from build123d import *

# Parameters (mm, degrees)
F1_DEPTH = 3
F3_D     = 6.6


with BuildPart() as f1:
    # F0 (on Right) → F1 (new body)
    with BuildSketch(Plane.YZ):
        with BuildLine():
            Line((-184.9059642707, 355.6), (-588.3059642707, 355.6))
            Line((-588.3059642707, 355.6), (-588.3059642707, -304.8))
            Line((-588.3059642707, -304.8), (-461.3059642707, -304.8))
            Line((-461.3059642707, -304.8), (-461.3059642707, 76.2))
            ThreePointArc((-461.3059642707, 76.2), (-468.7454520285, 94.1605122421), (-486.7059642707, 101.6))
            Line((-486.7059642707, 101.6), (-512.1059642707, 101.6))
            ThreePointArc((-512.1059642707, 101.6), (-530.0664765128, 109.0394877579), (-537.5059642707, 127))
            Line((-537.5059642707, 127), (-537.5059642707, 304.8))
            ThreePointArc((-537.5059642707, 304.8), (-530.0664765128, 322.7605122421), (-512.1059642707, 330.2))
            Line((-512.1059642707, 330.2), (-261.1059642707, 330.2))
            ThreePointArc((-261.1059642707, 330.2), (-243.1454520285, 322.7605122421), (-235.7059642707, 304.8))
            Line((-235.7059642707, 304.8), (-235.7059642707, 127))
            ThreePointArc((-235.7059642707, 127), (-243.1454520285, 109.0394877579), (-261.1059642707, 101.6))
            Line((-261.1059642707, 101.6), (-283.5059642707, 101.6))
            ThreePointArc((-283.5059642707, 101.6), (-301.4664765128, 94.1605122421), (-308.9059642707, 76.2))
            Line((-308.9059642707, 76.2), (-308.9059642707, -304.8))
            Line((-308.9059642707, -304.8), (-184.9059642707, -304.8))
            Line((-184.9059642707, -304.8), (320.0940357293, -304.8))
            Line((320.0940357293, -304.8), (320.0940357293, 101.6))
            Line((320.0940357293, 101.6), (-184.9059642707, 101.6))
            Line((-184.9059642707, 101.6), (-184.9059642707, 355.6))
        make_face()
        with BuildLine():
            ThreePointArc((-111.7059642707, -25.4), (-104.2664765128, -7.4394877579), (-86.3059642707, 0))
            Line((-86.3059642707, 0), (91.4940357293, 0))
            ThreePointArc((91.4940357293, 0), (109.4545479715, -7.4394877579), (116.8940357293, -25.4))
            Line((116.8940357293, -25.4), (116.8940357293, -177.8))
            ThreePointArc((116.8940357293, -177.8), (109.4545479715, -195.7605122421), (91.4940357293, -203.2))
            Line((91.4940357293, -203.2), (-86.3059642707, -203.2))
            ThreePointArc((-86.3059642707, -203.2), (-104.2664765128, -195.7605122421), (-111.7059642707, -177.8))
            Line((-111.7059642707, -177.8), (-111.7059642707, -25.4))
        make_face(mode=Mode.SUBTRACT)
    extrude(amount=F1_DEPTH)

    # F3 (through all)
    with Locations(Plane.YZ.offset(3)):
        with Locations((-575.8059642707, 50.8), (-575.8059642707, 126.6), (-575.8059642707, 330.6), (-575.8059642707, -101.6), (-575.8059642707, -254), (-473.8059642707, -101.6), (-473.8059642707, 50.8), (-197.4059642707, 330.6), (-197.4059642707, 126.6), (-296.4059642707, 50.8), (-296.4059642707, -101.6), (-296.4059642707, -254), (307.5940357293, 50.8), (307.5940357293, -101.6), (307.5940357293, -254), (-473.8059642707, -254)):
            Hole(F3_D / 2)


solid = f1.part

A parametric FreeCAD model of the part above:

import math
import FreeCAD as App
import Part
import Sketcher

V = App.Vector
Q = App.Units.Quantity

doc = App.newDocument("Part")
params = doc.addObject("Spreadsheet::Sheet", "Params")
for row, (alias, value) in enumerate([
    ("sketch1_radius", "1 in"),
    ("sketch1_width", "5 in"),
    ("sketch1_width2", "1 in"),
    ("sketch1_width3", "7 in"),
    ("sketch1_height", "26 in"),
    ("pad1_length", "3 mm"),
    ("hole_diameter", "6.6 mm"),
], start=1):
    params.set(f"A{row}", alias)
    params.set(f"B{row}", "=" + value)
    params.setAlias(f"B{row}", alias)

body = doc.addObject("PartDesign::Body", "Body")

# Sketch on YZ plane
sketch1 = doc.addObject("Sketcher::SketchObject", "Sketch")
body.addObject(sketch1)
sketch1.AttachmentSupport = (doc.YZ_Plane, [""])
sketch1.MapMode = "FlatFace"
sketch1.addGeometry(Part.LineSegment(V(-184.905964, 355.6, 0), V(-588.305964, 355.6, 0)), False)
sketch1.addGeometry(Part.LineSegment(V(-588.305964, 355.6, 0), V(-588.305964, -304.8, 0)), False)
sketch1.addGeometry(Part.LineSegment(V(-588.305964, -304.8, 0), V(-461.305964, -304.8, 0)), False)
sketch1.addGeometry(Part.LineSegment(V(-461.305964, -304.8, 0), V(-461.305964, 76.2, 0)), False)
sketch1.addGeometry(Part.ArcOfCircle(Part.Circle(V(-486.705964, 76.2, 0), V(0, 0, 1), 25.4), math.radians(0), math.radians(90)), False)
sketch1.addGeometry(Part.LineSegment(V(-486.705964, 101.6, 0), V(-512.105964, 101.6, 0)), False)
sketch1.addGeometry(Part.ArcOfCircle(Part.Circle(V(-512.105964, 127, 0), V(0, 0, 1), 25.4), math.radians(180), math.radians(270)), False)
sketch1.addGeometry(Part.LineSegment(V(-537.505964, 127, 0), V(-537.505964, 304.8, 0)), False)
sketch1.addGeometry(Part.ArcOfCircle(Part.Circle(V(-512.105964, 304.8, 0), V(0, 0, 1), 25.4), math.radians(90), math.radians(180)), False)
sketch1.addGeometry(Part.LineSegment(V(-512.105964, 330.2, 0), V(-261.105964, 330.2, 0)), False)
sketch1.addGeometry(Part.ArcOfCircle(Part.Circle(V(-261.105964, 304.8, 0), V(0, 0, 1), 25.4), math.radians(0), math.radians(90)), False)
sketch1.addGeometry(Part.LineSegment(V(-235.705964, 304.8, 0), V(-235.705964, 127, 0)), False)
sketch1.addGeometry(Part.ArcOfCircle(Part.Circle(V(-261.105964, 127, 0), V(0, 0, 1), 25.4), math.radians(-90), math.radians(0)), False)
sketch1.addGeometry(Part.LineSegment(V(-261.105964, 101.6, 0), V(-283.505964, 101.6, 0)), False)
sketch1.addGeometry(Part.ArcOfCircle(Part.Circle(V(-283.505964, 76.2, 0), V(0, 0, 1), 25.4), math.radians(90), math.radians(180)), False)
sketch1.addGeometry(Part.LineSegment(V(-308.905964, 76.2, 0), V(-308.905964, -304.8, 0)), False)
sketch1.addGeometry(Part.LineSegment(V(-308.905964, -304.8, 0), V(320.094036, -304.8, 0)), False)
sketch1.addGeometry(Part.LineSegment(V(320.094036, -304.8, 0), V(320.094036, 101.6, 0)), False)
sketch1.addGeometry(Part.LineSegment(V(320.094036, 101.6, 0), V(-184.905964, 101.6, 0)), False)
sketch1.addGeometry(Part.LineSegment(V(-184.905964, 101.6, 0), V(-184.905964, 355.6, 0)), False)
sketch1.addGeometry(Part.LineSegment(V(-111.705964, -177.8, 0), V(-111.705964, -25.4, 0)), False)
sketch1.addGeometry(Part.ArcOfCircle(Part.Circle(V(-86.305964, -25.4, 0), V(0, 0, 1), 25.4), math.radians(90), math.radians(180)), False)
sketch1.addGeometry(Part.LineSegment(V(-86.305964, 0, 0), V(91.494036, 0, 0)), False)
sketch1.addGeometry(Part.ArcOfCircle(Part.Circle(V(91.494036, -25.4, 0), V(0, 0, 1), 25.4), math.radians(0), math.radians(90)), False)
sketch1.addGeometry(Part.LineSegment(V(116.894036, -25.4, 0), V(116.894036, -177.8, 0)), False)
sketch1.addGeometry(Part.ArcOfCircle(Part.Circle(V(91.494036, -177.8, 0), V(0, 0, 1), 25.4), math.radians(-90), math.radians(0)), False)
sketch1.addGeometry(Part.LineSegment(V(91.494036, -203.2, 0), V(-86.305964, -203.2, 0)), False)
sketch1.addGeometry(Part.ArcOfCircle(Part.Circle(V(-86.305964, -177.8, 0), V(0, 0, 1), 25.4), math.radians(180), math.radians(270)), False)
sketch1.addConstraint(Sketcher.Constraint("Coincident", 0, 2, 1, 1))
sketch1.addConstraint(Sketcher.Constraint("Coincident", 1, 2, 2, 1))
sketch1.addConstraint(Sketcher.Constraint("Coincident", 2, 2, 3, 1))
sketch1.addConstraint(Sketcher.Constraint("Tangent", 3, 2, 4, 1))
sketch1.addConstraint(Sketcher.Constraint("Tangent", 4, 2, 5, 1))
sketch1.addConstraint(Sketcher.Constraint("Tangent", 5, 2, 6, 2))
sketch1.addConstraint(Sketcher.Constraint("Tangent", 6, 1, 7, 1))
sketch1.addConstraint(Sketcher.Constraint("Tangent", 7, 2, 8, 2))
sketch1.addConstraint(Sketcher.Constraint("Tangent", 8, 1, 9, 1))
sketch1.addConstraint(Sketcher.Constraint("Tangent", 9, 2, 10, 2))
sketch1.addConstraint(Sketcher.Constraint("Tangent", 10, 1, 11, 1))
sketch1.addConstraint(Sketcher.Constraint("Tangent", 11, 2, 12, 2))
sketch1.addConstraint(Sketcher.Constraint("Tangent", 12, 1, 13, 1))
sketch1.addConstraint(Sketcher.Constraint("Tangent", 13, 2, 14, 1))
sketch1.addConstraint(Sketcher.Constraint("Tangent", 14, 2, 15, 1))
sketch1.addConstraint(Sketcher.Constraint("Coincident", 15, 2, 16, 1))
sketch1.addConstraint(Sketcher.Constraint("Coincident", 16, 2, 17, 1))
sketch1.addConstraint(Sketcher.Constraint("Coincident", 17, 2, 18, 1))
sketch1.addConstraint(Sketcher.Constraint("Coincident", 18, 2, 19, 1))
sketch1.addConstraint(Sketcher.Constraint("Coincident", 19, 2, 0, 1))
sketch1.addConstraint(Sketcher.Constraint("Tangent", 20, 2, 21, 2))
sketch1.addConstraint(Sketcher.Constraint("Tangent", 21, 1, 22, 1))
sketch1.addConstraint(Sketcher.Constraint("Tangent", 22, 2, 23, 2))
sketch1.addConstraint(Sketcher.Constraint("Tangent", 23, 1, 24, 1))
sketch1.addConstraint(Sketcher.Constraint("Tangent", 24, 2, 25, 2))
sketch1.addConstraint(Sketcher.Constraint("Tangent", 25, 1, 26, 1))
sketch1.addConstraint(Sketcher.Constraint("Tangent", 26, 2, 27, 2))
sketch1.addConstraint(Sketcher.Constraint("Tangent", 27, 1, 20, 1))
sketch1.addConstraint(Sketcher.Constraint("Horizontal", 0))
sketch1.addConstraint(Sketcher.Constraint("Vertical", 1))
sketch1.addConstraint(Sketcher.Constraint("Horizontal", 2))
sketch1.addConstraint(Sketcher.Constraint("Vertical", 3))
sketch1.addConstraint(Sketcher.Constraint("Horizontal", 5))
sketch1.addConstraint(Sketcher.Constraint("Vertical", 7))
sketch1.addConstraint(Sketcher.Constraint("Horizontal", 9))
sketch1.addConstraint(Sketcher.Constraint("Vertical", 11))
sketch1.addConstraint(Sketcher.Constraint("Horizontal", 13))
sketch1.addConstraint(Sketcher.Constraint("Vertical", 15))
sketch1.addConstraint(Sketcher.Constraint("Horizontal", 16))
sketch1.addConstraint(Sketcher.Constraint("Vertical", 17))
sketch1.addConstraint(Sketcher.Constraint("Horizontal", 18))
sketch1.addConstraint(Sketcher.Constraint("Vertical", 19))
sketch1.addConstraint(Sketcher.Constraint("Vertical", 20))
sketch1.addConstraint(Sketcher.Constraint("Horizontal", 22))
sketch1.addConstraint(Sketcher.Constraint("Vertical", 24))
sketch1.addConstraint(Sketcher.Constraint("Horizontal", 26))
sketch1.addConstraint(Sketcher.Constraint("Equal", 4, 6))
sketch1.addConstraint(Sketcher.Constraint("Equal", 6, 8))
sketch1.addConstraint(Sketcher.Constraint("Equal", 8, 10))
sketch1.addConstraint(Sketcher.Constraint("Equal", 10, 12))
sketch1.addConstraint(Sketcher.Constraint("Equal", 12, 14))
sketch1.addConstraint(Sketcher.Constraint("Equal", 14, 21))
sketch1.addConstraint(Sketcher.Constraint("Equal", 21, 23))
sketch1.addConstraint(Sketcher.Constraint("Equal", 23, 25))
sketch1.addConstraint(Sketcher.Constraint("Equal", 25, 27))
sketch1.addConstraint(Sketcher.Constraint("PointOnObject", 21, 1, -1))
sketch1.addConstraint(Sketcher.Constraint("Horizontal", 6, 3, 12, 3))
sketch1.addConstraint(Sketcher.Constraint("Horizontal", 2, 2, 15, 2))
sketch1.addConstraint(Sketcher.Constraint("Horizontal", 13, 2, 17, 2))
sketch1.addConstraint(Sketcher.Constraint("Equal", 26, 7))
sketch1.addConstraint(Sketcher.Constraint("Radius", 4, Q("1 in")))
sketch1.addConstraint(Sketcher.Constraint("DistanceX", 2, 1, 2, 2, Q("5 in")))
sketch1.addConstraint(Sketcher.Constraint("DistanceX", 5, 2, 5, 1, Q("1 in")))
sketch1.addConstraint(Sketcher.Constraint("DistanceX", 22, 1, 22, 2, Q("7 in")))
sketch1.addConstraint(Sketcher.Constraint("DistanceY", 1, 2, 1, 1, Q("26 in")))
sketch1.addConstraint(Sketcher.Constraint("DistanceY", 3, 1, 3, 2, Q("15 in")))
sketch1.addConstraint(Sketcher.Constraint("DistanceY", 20, 1, 20, 2, Q("6 in")))
sketch1.addConstraint(Sketcher.Constraint("DistanceY", -1, 1, 4, 3, Q("3 in")))
sketch1.addConstraint(Sketcher.Constraint("DistanceX", 4, 3, 14, 3, Q("8 in")))
sketch1.addConstraint(Sketcher.Constraint("DistanceX", 25, 3, 16, 2, Q("9 in")))
sketch1.addConstraint(Sketcher.Constraint("DistanceX", 11, 2, 18, 2, Q("2 in")))
sketch1.addConstraint(Sketcher.Constraint("DistanceX", 0, 2, 0, 1, 403.4))
sketch1.addConstraint(Sketcher.Constraint("DistanceX", 16, 1, 16, 2, 629.0))
sketch1.addConstraint(Sketcher.Constraint("DistanceX", 4, 3, -1, 1, 486.705964))
sketch1.setExpression("Constraints[60]", "Params.sketch1_radius")
sketch1.setExpression("Constraints[61]", "Params.sketch1_width")
sketch1.setExpression("Constraints[62]", "Params.sketch1_width2")
sketch1.setExpression("Constraints[63]", "Params.sketch1_width3")
sketch1.setExpression("Constraints[64]", "Params.sketch1_height")
pad1 = doc.addObject("PartDesign::Pad", "Pad")
body.addObject(pad1)
pad1.Profile = sketch1
pad1.setExpression("Length", "Params.pad1_length")

# Sketch on YZ plane
sketch2 = doc.addObject("Sketcher::SketchObject", "Sketch001")
body.addObject(sketch2)
sketch2.AttachmentSupport = (doc.YZ_Plane, [""])
sketch2.MapMode = "FlatFace"
sketch2.AttachmentOffset = App.Placement(V(0, 0, 3), App.Rotation())
sketch2.addGeometry(Part.Circle(V(-575.805964, 50.8, 0), V(0, 0, 1), 3.3), False)
sketch2.addGeometry(Part.Circle(V(-575.805964, 126.6, 0), V(0, 0, 1), 3.3), False)
sketch2.addGeometry(Part.Circle(V(-575.805964, 330.6, 0), V(0, 0, 1), 3.3), False)
sketch2.addGeometry(Part.Circle(V(-575.805964, -101.6, 0), V(0, 0, 1), 3.3), False)
sketch2.addGeometry(Part.Circle(V(-575.805964, -254, 0), V(0, 0, 1), 3.3), False)
sketch2.addGeometry(Part.Circle(V(-473.805964, -101.6, 0), V(0, 0, 1), 3.3), False)
sketch2.addGeometry(Part.Circle(V(-473.805964, 50.8, 0), V(0, 0, 1), 3.3), False)
sketch2.addGeometry(Part.Circle(V(-197.405964, 330.6, 0), V(0, 0, 1), 3.3), False)
sketch2.addGeometry(Part.Circle(V(-197.405964, 126.6, 0), V(0, 0, 1), 3.3), False)
sketch2.addGeometry(Part.Circle(V(-296.405964, 50.8, 0), V(0, 0, 1), 3.3), False)
sketch2.addGeometry(Part.Circle(V(-296.405964, -101.6, 0), V(0, 0, 1), 3.3), False)
sketch2.addGeometry(Part.Circle(V(-296.405964, -254, 0), V(0, 0, 1), 3.3), False)
sketch2.addGeometry(Part.Circle(V(307.594036, 50.8, 0), V(0, 0, 1), 3.3), False)
sketch2.addGeometry(Part.Circle(V(307.594036, -101.6, 0), V(0, 0, 1), 3.3), False)
sketch2.addGeometry(Part.Circle(V(307.594036, -254, 0), V(0, 0, 1), 3.3), False)
sketch2.addGeometry(Part.Circle(V(-473.805964, -254, 0), V(0, 0, 1), 3.3), False)
sketch2.addConstraint(Sketcher.Constraint("Equal", 0, 1))
sketch2.addConstraint(Sketcher.Constraint("Equal", 1, 2))
sketch2.addConstraint(Sketcher.Constraint("Equal", 2, 3))
sketch2.addConstraint(Sketcher.Constraint("Equal", 3, 4))
sketch2.addConstraint(Sketcher.Constraint("Equal", 4, 5))
sketch2.addConstraint(Sketcher.Constraint("Equal", 5, 6))
sketch2.addConstraint(Sketcher.Constraint("Equal", 6, 7))
sketch2.addConstraint(Sketcher.Constraint("Equal", 7, 8))
sketch2.addConstraint(Sketcher.Constraint("Equal", 8, 9))
sketch2.addConstraint(Sketcher.Constraint("Equal", 9, 10))
sketch2.addConstraint(Sketcher.Constraint("Equal", 10, 11))
sketch2.addConstraint(Sketcher.Constraint("Equal", 11, 12))
sketch2.addConstraint(Sketcher.Constraint("Equal", 12, 13))
sketch2.addConstraint(Sketcher.Constraint("Equal", 13, 14))
sketch2.addConstraint(Sketcher.Constraint("Equal", 14, 15))
sketch2.addConstraint(Sketcher.Constraint("Horizontal", 3, 3, 5, 3))
sketch2.addConstraint(Sketcher.Constraint("Horizontal", 0, 3, 6, 3))
sketch2.addConstraint(Sketcher.Constraint("Horizontal", 2, 3, 7, 3))
sketch2.addConstraint(Sketcher.Constraint("Horizontal", 1, 3, 8, 3))
sketch2.addConstraint(Sketcher.Constraint("Horizontal", 6, 3, 9, 3))
sketch2.addConstraint(Sketcher.Constraint("Horizontal", 5, 3, 10, 3))
sketch2.addConstraint(Sketcher.Constraint("Horizontal", 4, 3, 11, 3))
sketch2.addConstraint(Sketcher.Constraint("Horizontal", 9, 3, 12, 3))
sketch2.addConstraint(Sketcher.Constraint("Horizontal", 10, 3, 13, 3))
sketch2.addConstraint(Sketcher.Constraint("Horizontal", 11, 3, 14, 3))
sketch2.addConstraint(Sketcher.Constraint("Horizontal", 14, 3, 15, 3))
sketch2.addConstraint(Sketcher.Constraint("Vertical", 0, 3, 1, 3))
sketch2.addConstraint(Sketcher.Constraint("Vertical", 1, 3, 2, 3))
sketch2.addConstraint(Sketcher.Constraint("Vertical", 2, 3, 3, 3))
sketch2.addConstraint(Sketcher.Constraint("Vertical", 3, 3, 4, 3))
sketch2.addConstraint(Sketcher.Constraint("Vertical", 5, 3, 6, 3))
sketch2.addConstraint(Sketcher.Constraint("Vertical", 7, 3, 8, 3))
sketch2.addConstraint(Sketcher.Constraint("Vertical", 9, 3, 10, 3))
sketch2.addConstraint(Sketcher.Constraint("Vertical", 10, 3, 11, 3))
sketch2.addConstraint(Sketcher.Constraint("Vertical", 12, 3, 13, 3))
sketch2.addConstraint(Sketcher.Constraint("Vertical", 13, 3, 14, 3))
sketch2.addConstraint(Sketcher.Constraint("Vertical", 6, 3, 15, 3))
sketch2.addConstraint(Sketcher.Constraint("DistanceY", -1, 1, 0, 3, Q("2 in")))
sketch2.addConstraint(Sketcher.Constraint("DistanceY", 3, 3, -1, 1, Q("4 in")))
sketch2.addConstraint(Sketcher.Constraint("DistanceY", 4, 3, -1, 1, Q("10 in")))
sketch2.addConstraint(Sketcher.Constraint("DistanceX", 0, 3, 9, 3, Q("11 in")))
sketch2.addConstraint(Sketcher.Constraint("Diameter", 0, 6.6))
sketch2.addConstraint(Sketcher.Constraint("DistanceY", -1, 1, 1, 3, 126.6))
sketch2.addConstraint(Sketcher.Constraint("DistanceY", -1, 1, 2, 3, 330.6))
sketch2.addConstraint(Sketcher.Constraint("DistanceX", 3, 3, 5, 3, 102.0))
sketch2.addConstraint(Sketcher.Constraint("DistanceX", 2, 3, 7, 3, 378.4))
sketch2.addConstraint(Sketcher.Constraint("DistanceX", 8, 3, 12, 3, 505.0))
sketch2.addConstraint(Sketcher.Constraint("DistanceX", 0, 3, -1, 1, 575.805964))
doc.recompute()
hole = doc.addObject("PartDesign::Hole", "Hole")
body.addObject(hole)
hole.Profile = sketch2
hole.ThreadType = "None"
hole.setExpression("Diameter", "Params.hole_diameter")
hole.DepthType = "ThroughAll"

doc.recompute()
